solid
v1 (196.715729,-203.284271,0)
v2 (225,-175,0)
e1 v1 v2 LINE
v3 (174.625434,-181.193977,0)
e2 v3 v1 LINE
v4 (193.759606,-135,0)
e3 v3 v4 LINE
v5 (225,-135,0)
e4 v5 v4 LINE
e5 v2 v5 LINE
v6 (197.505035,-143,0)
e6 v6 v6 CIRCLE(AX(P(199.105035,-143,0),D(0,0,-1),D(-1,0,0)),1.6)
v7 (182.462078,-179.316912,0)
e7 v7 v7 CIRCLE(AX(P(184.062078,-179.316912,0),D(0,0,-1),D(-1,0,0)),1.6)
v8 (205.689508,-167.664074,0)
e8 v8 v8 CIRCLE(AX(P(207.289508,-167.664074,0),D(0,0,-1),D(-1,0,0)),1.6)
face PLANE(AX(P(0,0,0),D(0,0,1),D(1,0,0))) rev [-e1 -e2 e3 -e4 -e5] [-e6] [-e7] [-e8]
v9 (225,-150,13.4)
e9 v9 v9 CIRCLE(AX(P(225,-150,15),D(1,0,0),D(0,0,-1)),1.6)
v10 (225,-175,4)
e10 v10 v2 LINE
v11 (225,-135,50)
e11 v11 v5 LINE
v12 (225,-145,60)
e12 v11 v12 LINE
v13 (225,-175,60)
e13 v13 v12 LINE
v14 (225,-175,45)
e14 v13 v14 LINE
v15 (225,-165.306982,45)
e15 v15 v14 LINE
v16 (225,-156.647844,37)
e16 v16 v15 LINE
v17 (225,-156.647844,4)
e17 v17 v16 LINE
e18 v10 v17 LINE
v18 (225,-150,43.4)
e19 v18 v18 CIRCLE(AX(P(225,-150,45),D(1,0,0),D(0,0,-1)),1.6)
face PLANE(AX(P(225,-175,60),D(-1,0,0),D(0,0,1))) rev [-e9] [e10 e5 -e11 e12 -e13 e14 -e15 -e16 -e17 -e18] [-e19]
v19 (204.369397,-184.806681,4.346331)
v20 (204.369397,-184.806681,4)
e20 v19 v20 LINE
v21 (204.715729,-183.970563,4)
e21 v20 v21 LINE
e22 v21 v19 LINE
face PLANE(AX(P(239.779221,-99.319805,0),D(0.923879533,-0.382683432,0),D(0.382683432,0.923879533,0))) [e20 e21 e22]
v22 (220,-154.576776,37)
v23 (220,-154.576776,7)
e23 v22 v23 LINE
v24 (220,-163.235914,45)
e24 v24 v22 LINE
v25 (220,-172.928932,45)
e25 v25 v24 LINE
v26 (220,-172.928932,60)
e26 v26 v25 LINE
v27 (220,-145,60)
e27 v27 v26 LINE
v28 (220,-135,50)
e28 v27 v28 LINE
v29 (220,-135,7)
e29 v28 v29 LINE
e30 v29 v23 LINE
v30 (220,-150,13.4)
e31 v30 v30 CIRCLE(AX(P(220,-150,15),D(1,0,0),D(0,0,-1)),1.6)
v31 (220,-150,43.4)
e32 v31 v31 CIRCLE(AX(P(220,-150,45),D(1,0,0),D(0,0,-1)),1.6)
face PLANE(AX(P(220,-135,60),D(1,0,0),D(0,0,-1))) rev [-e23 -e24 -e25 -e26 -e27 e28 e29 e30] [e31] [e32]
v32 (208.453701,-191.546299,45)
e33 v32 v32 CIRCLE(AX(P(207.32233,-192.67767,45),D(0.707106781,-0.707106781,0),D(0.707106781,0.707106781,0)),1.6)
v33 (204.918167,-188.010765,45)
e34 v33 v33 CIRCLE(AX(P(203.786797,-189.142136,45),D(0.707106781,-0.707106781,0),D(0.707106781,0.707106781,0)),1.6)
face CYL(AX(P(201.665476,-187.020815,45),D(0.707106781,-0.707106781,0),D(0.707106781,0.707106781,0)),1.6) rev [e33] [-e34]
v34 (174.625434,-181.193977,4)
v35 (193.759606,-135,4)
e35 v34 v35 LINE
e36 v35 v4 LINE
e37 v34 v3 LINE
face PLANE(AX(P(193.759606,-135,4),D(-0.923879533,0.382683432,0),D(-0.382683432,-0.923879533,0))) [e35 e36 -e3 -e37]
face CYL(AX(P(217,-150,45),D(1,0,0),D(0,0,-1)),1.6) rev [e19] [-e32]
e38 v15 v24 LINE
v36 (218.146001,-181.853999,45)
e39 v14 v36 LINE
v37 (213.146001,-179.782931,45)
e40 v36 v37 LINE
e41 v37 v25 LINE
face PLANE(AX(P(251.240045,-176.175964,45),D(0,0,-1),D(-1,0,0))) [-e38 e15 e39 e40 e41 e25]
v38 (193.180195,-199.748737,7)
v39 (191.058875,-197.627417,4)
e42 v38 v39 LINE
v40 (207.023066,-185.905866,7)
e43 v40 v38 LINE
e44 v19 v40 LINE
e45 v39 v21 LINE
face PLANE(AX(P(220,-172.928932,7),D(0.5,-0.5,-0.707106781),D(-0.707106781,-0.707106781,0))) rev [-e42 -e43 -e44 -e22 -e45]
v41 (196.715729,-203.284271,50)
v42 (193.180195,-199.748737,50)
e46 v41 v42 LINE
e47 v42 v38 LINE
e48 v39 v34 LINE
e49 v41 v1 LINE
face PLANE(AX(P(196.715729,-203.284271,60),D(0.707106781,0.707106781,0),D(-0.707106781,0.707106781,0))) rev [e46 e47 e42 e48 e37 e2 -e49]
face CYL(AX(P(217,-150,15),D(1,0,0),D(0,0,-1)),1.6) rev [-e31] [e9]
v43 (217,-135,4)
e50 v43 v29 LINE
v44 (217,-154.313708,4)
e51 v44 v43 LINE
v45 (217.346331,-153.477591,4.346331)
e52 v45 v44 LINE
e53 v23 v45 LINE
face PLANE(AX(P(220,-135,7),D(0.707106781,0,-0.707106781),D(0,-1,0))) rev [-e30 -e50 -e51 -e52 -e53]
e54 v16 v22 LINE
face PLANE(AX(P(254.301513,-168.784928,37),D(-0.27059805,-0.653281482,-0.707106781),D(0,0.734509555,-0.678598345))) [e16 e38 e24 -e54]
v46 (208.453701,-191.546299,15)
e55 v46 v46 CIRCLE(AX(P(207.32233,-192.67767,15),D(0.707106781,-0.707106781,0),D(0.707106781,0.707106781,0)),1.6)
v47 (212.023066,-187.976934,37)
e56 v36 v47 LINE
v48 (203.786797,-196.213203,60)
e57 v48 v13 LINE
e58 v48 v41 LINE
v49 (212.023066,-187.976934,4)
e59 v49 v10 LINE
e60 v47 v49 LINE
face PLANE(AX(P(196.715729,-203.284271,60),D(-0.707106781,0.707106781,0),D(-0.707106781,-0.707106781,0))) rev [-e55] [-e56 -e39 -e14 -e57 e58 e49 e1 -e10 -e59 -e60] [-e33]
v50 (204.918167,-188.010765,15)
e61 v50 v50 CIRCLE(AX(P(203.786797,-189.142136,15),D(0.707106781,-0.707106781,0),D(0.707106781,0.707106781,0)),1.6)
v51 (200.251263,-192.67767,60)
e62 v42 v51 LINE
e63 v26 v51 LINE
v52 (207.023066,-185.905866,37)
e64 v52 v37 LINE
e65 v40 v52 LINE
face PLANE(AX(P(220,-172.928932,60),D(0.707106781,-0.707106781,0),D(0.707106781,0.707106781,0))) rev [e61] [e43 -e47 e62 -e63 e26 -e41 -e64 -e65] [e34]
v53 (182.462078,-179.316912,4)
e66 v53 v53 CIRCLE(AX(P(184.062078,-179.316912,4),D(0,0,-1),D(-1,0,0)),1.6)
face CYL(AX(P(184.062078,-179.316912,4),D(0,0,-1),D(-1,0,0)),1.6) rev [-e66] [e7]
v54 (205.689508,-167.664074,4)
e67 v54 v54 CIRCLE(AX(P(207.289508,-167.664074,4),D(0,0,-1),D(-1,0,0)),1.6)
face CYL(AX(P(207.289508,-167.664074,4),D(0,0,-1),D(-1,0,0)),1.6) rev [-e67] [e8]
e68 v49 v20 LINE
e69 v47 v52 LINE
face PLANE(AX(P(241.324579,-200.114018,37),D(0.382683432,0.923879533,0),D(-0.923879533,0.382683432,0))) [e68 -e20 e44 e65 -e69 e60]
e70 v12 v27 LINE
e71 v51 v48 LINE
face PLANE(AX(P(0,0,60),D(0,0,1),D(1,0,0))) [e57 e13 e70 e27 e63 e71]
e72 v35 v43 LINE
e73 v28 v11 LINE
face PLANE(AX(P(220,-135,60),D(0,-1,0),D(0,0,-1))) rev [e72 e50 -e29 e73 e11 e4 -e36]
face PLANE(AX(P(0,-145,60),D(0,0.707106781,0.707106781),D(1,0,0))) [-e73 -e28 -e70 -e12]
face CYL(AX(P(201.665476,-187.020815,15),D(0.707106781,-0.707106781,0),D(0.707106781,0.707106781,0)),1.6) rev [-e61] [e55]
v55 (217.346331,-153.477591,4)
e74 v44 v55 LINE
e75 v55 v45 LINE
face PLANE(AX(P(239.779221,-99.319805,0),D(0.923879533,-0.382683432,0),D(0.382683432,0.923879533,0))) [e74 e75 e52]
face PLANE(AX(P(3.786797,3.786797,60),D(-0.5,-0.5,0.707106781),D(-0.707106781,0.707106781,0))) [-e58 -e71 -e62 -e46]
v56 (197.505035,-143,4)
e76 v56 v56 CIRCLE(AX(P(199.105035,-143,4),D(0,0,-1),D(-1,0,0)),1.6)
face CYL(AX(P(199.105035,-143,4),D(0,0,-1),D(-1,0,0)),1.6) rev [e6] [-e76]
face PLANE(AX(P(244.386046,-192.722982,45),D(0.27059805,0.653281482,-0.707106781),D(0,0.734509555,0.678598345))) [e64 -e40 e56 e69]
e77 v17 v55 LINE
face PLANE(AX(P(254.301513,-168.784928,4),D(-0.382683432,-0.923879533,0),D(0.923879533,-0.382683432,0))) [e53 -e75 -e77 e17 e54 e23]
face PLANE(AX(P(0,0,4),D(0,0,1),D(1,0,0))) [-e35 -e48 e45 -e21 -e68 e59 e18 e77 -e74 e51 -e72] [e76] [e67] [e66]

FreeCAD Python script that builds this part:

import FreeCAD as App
import Part
import Sketcher

V = App.Vector
Q = App.Units.Quantity


def edges_at(feature, points):
    """Names of the edges that pass closest to the given points."""
    edges = feature.Shape.Edges
    near = lambda p: min(range(len(edges)), key=lambda i: edges[i].distToShape(Part.Vertex(*p))[0])
    return sorted({f"Edge{near(p) + 1}" for p in points})

doc = App.newDocument("Part")
params = doc.addObject("Spreadsheet::Sheet", "Params")
for row, (alias, value) in enumerate([
    ("sketch1_width", "5 mm"),
    ("sketch1_height", "40 mm"),
    ("sketch1_length", "5 mm"),
    ("sketch1_length2", "40 mm"),
    ("pad1_length", "60 mm"),
    ("sketch2_diameter", "3.2 mm"),
    ("sketch2_height", "40 mm"),
    ("sketch2_length", "40 mm"),
    ("sketch2_length2", "50 mm"),
    ("pad2_length", "4 mm"),
    ("chamfer_size", "3 mm"),
    ("sketch3_diameter", "3.2 mm"),
    ("pocket1_length", "8 mm"),
    ("sketch4_diameter", "3.2 mm"),
    ("pocket2_length", "8 mm"),
    ("chamfer2_size", "10 mm"),
    ("sketch5_width", "33 mm"),
    ("pocket3_length", "40 mm"),
], start=1):
    params.set(f"A{row}", alias)
    params.set(f"B{row}", "=" + value)
    params.setAlias(f"B{row}", alias)

body = doc.addObject("PartDesign::Body", "Body")

sketch1 = body.newObject("Sketcher::SketchObject", "Sketch")
sketch1.AttachmentSupport = (doc.getObject("XY_Plane"), [""])
sketch1.MapMode = "FlatFace"
sketch1.addGeometry(Part.LineSegment(V(225, -175, 0), V(225, -135, 0)), False)
sketch1.addGeometry(Part.LineSegment(V(225, -135, 0), V(220, -135, 0)), False)
sketch1.addGeometry(Part.LineSegment(V(220, -135, 0), V(220, -172.928932, 0)), False)
sketch1.addGeometry(Part.LineSegment(V(220, -172.928932, 0), V(193.180195, -199.748737, 0)), False)
sketch1.addGeometry(Part.LineSegment(V(193.180195, -199.748737, 0), V(196.715729, -203.284271, 0)), False)
sketch1.addGeometry(Part.LineSegment(V(196.715729, -203.284271, 0), V(225, -175, 0)), False)
sketch1.addConstraint(Sketcher.Constraint("Coincident", 0, 2, 1, 1))
sketch1.addConstraint(Sketcher.Constraint("Coincident", 1, 2, 2, 1))
sketch1.addConstraint(Sketcher.Constraint("Coincident", 2, 2, 3, 1))
sketch1.addConstraint(Sketcher.Constraint("Coincident", 3, 2, 4, 1))
sketch1.addConstraint(Sketcher.Constraint("Coincident", 4, 2, 5, 1))
sketch1.addConstraint(Sketcher.Constraint("Coincident", 5, 2, 0, 1))
sketch1.addConstraint(Sketcher.Constraint("Vertical", 0))
sketch1.addConstraint(Sketcher.Constraint("Horizontal", 1))
sketch1.addConstraint(Sketcher.Constraint("Vertical", 2))
sketch1.addConstraint(Sketcher.Constraint("Perpendicular", 3, 4))
sketch1.addConstraint(Sketcher.Constraint("Perpendicular", 4, 5))
sketch1.addConstraint(Sketcher.Constraint("DistanceX", 1, 2, 1, 1, Q("5 mm")))
sketch1.addConstraint(Sketcher.Constraint("DistanceY", 0, 1, 0, 2, Q("40 mm")))
sketch1.addConstraint(Sketcher.Constraint("Angle", 3, Q("-135 deg")))
sketch1.addConstraint(Sketcher.Constraint("Distance", 4, Q("5 mm")))
sketch1.addConstraint(Sketcher.Constraint("Distance", 5, Q("40 mm")))
sketch1.addConstraint(Sketcher.Constraint("DistanceX", -1, 1, 0, 2, Q("225 mm")))
sketch1.addConstraint(Sketcher.Constraint("DistanceY", 0, 2, -1, 1, Q("135 mm")))
sketch1.setExpression("Constraints[11]", "Params.sketch1_width")
sketch1.setExpression("Constraints[12]", "Params.sketch1_height")
sketch1.setExpression("Constraints[14]", "Params.sketch1_length")
sketch1.setExpression("Constraints[15]", "Params.sketch1_length2")
pad1 = body.newObject("PartDesign::Pad", "Pad")
pad1.Profile = sketch1
pad1.setExpression("Length", "Params.pad1_length")

sketch2 = body.newObject("Sketcher::SketchObject", "Sketch001")
sketch2.AttachmentSupport = (doc.getObject("XY_Plane"), [""])
sketch2.MapMode = "FlatFace"
sketch2.addGeometry(Part.LineSegment(V(193.759606, -135, 0), V(225, -135, 0)), False)
sketch2.addGeometry(Part.LineSegment(V(225, -135, 0), V(225, -175, 0)), False)
sketch2.addGeometry(Part.LineSegment(V(225, -175, 0), V(196.715729, -203.284271, 0)), False)
sketch2.addGeometry(Part.LineSegment(V(196.715729, -203.284271, 0), V(174.625434, -181.193977, 0)), False)
sketch2.addGeometry(Part.LineSegment(V(174.625434, -181.193977, 0), V(193.759606, -135, 0)), False)
sketch2.addGeometry(Part.Circle(V(184.062078, -179.316912, 0), V(0, 0, 1), 1.6), False)
sketch2.addGeometry(Part.Circle(V(207.289508, -167.664074, 0), V(0, 0, 1), 1.6), False)
sketch2.addGeometry(Part.Circle(V(199.105035, -143, 0), V(0, 0, 1), 1.6), False)
sketch2.addConstraint(Sketcher.Constraint("Coincident", 0, 2, 1, 1))
sketch2.addConstraint(Sketcher.Constraint("Coincident", 1, 2, 2, 1))
sketch2.addConstraint(Sketcher.Constraint("Coincident", 2, 2, 3, 1))
sketch2.addConstraint(Sketcher.Constraint("Coincident", 3, 2, 4, 1))
sketch2.addConstraint(Sketcher.Constraint("Coincident", 4, 2, 0, 1))
sketch2.addConstraint(Sketcher.Constraint("Horizontal", 0))
sketch2.addConstraint(Sketcher.Constraint("Vertical", 1))
sketch2.addConstraint(Sketcher.Constraint("Equal", 5, 6))
sketch2.addConstraint(Sketcher.Constraint("Equal", 6, 7))
sketch2.addConstraint(Sketcher.Constraint("Perpendicular", 2, 3))
sketch2.addConstraint(Sketcher.Constraint("Diameter", 5, Q("3.2 mm")))
sketch2.addConstraint(Sketcher.Constraint("DistanceY", 1, 2, 1, 1, Q("40 mm")))
sketch2.addConstraint(Sketcher.Constraint("Angle", 2, Q("-135 deg")))
sketch2.addConstraint(Sketcher.Constraint("Distance", 2, Q("40 mm")))
sketch2.addConstraint(Sketcher.Constraint("Distance", 4, Q("50 mm")))
sketch2.addConstraint(Sketcher.Constraint("DistanceY", 7, 3, -1, 1, Q("143 mm")))
sketch2.addConstraint(Sketcher.Constraint("DistanceX", -1, 1, 0, 2, Q("225 mm")))
sketch2.addConstraint(Sketcher.Constraint("DistanceY", 0, 2, -1, 1, Q("135 mm")))
sketch2.addConstraint(Sketcher.Constraint("Angle", 4, Q("67.5 deg")))
sketch2.addConstraint(Sketcher.Constraint("DistanceX", 3, 2, 7, 3, Q("24.479601 mm")))
sketch2.addConstraint(Sketcher.Constraint("DistanceY", 5, 3, -1, 1, Q("179.316912 mm")))
sketch2.addConstraint(Sketcher.Constraint("DistanceX", -1, 1, 6, 3, Q("207.289508 mm")))
sketch2.addConstraint(Sketcher.Constraint("DistanceX", 5, 3, 6, 3, Q("23.227431 mm")))
sketch2.addConstraint(Sketcher.Constraint("DistanceY", 6, 3, -1, 1, Q("167.664074 mm")))
sketch2.setExpression("Constraints[10]", "Params.sketch2_diameter")
sketch2.setExpression("Constraints[11]", "Params.sketch2_height")
sketch2.setExpression("Constraints[13]", "Params.sketch2_length")
sketch2.setExpression("Constraints[14]", "Params.sketch2_length2")
pad2 = body.newObject("PartDesign::Pad", "Pad001")
pad2.Profile = sketch2
pad2.setExpression("Length", "Params.pad2_length")
doc.recompute()

chamfer = body.newObject("PartDesign::Chamfer", "Chamfer")
chamfer.Base = (pad2, edges_at(pad2, [(220, -153.964, 4), (206.59, -186.339, 4)]))
chamfer.setExpression("Size", "Params.chamfer_size")

sketch3 = body.newObject("Sketcher::SketchObject", "Sketch002")
sketch3.AttachmentSupport = (doc.getObject("YZ_Plane"), [""])
sketch3.MapMode = "FlatFace"
sketch3.AttachmentOffset = App.Placement(V(0, 0, 225), App.Rotation())
sketch3.addGeometry(Part.Circle(V(-150, 45, 0), V(0, 0, 1), 1.6), False)
sketch3.addGeometry(Part.Circle(V(-150, 15, 0), V(0, 0, 1), 1.6), False)
sketch3.addConstraint(Sketcher.Constraint("Equal", 0, 1))
sketch3.addConstraint(Sketcher.Constraint("Vertical", 0, 3, 1, 3))
sketch3.addConstraint(Sketcher.Constraint("Diameter", 0, Q("3.2 mm")))
sketch3.addConstraint(Sketcher.Constraint("DistanceX", 0, 3, -1, 1, Q("150 mm")))
sketch3.addConstraint(Sketcher.Constraint("DistanceY", -1, 1, 0, 3, Q("45 mm")))
sketch3.addConstraint(Sketcher.Constraint("DistanceY", -1, 1, 1, 3, Q("15 mm")))
sketch3.setExpression("Constraints[2]", "Params.sketch3_diameter")
pocket1 = body.newObject("PartDesign::Pocket", "Pocket")
pocket1.Profile = sketch3
pocket1.setExpression("Length", "Params.pocket1_length")

sketch4 = body.newObject("Sketcher::SketchObject", "Sketch003")
sketch4.Placement = App.Placement(V(200, -200, 0), App.Rotation(V(0, 0, -1), V(0.707106781, 0.707106781, 0), V(0.707106781, -0.707106781, 0), "ZXY"))
sketch4.addGeometry(Part.Circle(V(-45, 10.355339, 0), V(0, 0, 1), 1.6), False)
sketch4.addGeometry(Part.Circle(V(-15, 10.355339, 0), V(0, 0, 1), 1.6), False)
sketch4.addConstraint(Sketcher.Constraint("Equal", 0, 1))
sketch4.addConstraint(Sketcher.Constraint("Horizontal", 0, 3, 1, 3))
sketch4.addConstraint(Sketcher.Constraint("Diameter", 0, Q("3.2 mm")))
sketch4.addConstraint(Sketcher.Constraint("DistanceX", 0, 3, -1, 1, Q("45 mm")))
sketch4.addConstraint(Sketcher.Constraint("DistanceX", 1, 3, -1, 1, Q("15 mm")))
sketch4.addConstraint(Sketcher.Constraint("DistanceY", -1, 1, 0, 3, Q("10.355339 mm")))
sketch4.setExpression("Constraints[2]", "Params.sketch4_diameter")
pocket2 = body.newObject("PartDesign::Pocket", "Pocket001")
pocket2.Profile = sketch4
pocket2.setExpression("Length", "Params.pocket2_length")
doc.recompute()

chamfer2 = body.newObject("PartDesign::Chamfer", "Chamfer001")
chamfer2.Base = (pocket2, edges_at(pocket2, [(222.5, -135, 60), (194.948, -201.517, 60)]))
chamfer2.setExpression("Size", "Params.chamfer2_size")

sketch5 = body.newObject("Sketcher::SketchObject", "Sketch004")
sketch5.Placement = App.Placement(V(239.779221, -99.319805, 0), App.Rotation(V(0, 0, -1), V(0.382683432, 0.923879533, 0), V(0.923879533, -0.382683432, 0), "ZXY"))
sketch5.addGeometry(Part.LineSegment(V(-37, -58.619965, 0), V(-45, -66.619965, 0)), False)
sketch5.addGeometry(Part.LineSegment(V(-45, -66.619965, 0), V(-45, -84.530327, 0)), False)
sketch5.addGeometry(Part.LineSegment(V(-45, -84.530327, 0), V(-37, -92.530327, 0)), False)
sketch5.addGeometry(Part.LineSegment(V(-37, -92.530327, 0), V(-4, -92.530327, 0)), False)
sketch5.addGeometry(Part.LineSegment(V(-4, -92.530327, 0), V(-4, -58.619965, 0)), False)
sketch5.addGeometry(Part.LineSegment(V(-4, -58.619965, 0), V(-37, -58.619965, 0)), False)
sketch5.addConstraint(Sketcher.Constraint("Coincident", 0, 2, 1, 1))
sketch5.addConstraint(Sketcher.Constraint("Coincident", 1, 2, 2, 1))
sketch5.addConstraint(Sketcher.Constraint("Coincident", 2, 2, 3, 1))
sketch5.addConstraint(Sketcher.Constraint("Coincident", 3, 2, 4, 1))
sketch5.addConstraint(Sketcher.Constraint("Coincident", 4, 2, 5, 1))
sketch5.addConstraint(Sketcher.Constraint("Coincident", 5, 2, 0, 1))
sketch5.addConstraint(Sketcher.Constraint("Vertical", 1))
sketch5.addConstraint(Sketcher.Constraint("Horizontal", 3))
sketch5.addConstraint(Sketcher.Constraint("Vertical", 4))
sketch5.addConstraint(Sketcher.Constraint("Horizontal", 5))
sketch5.addConstraint(Sketcher.Constraint("Perpendicular", 0, 2))
sketch5.addConstraint(Sketcher.Constraint("Vertical", 2, 2, 5, 2))
sketch5.addConstraint(Sketcher.Constraint("Equal", 0, 2))
sketch5.addConstraint(Sketcher.Constraint("DistanceX", 3, 1, 3, 2, Q("33 mm")))
sketch5.addConstraint(Sketcher.Constraint("DistanceX", 0, 2, -1, 1, Q("45 mm")))
sketch5.addConstraint(Sketcher.Constraint("DistanceX", 2, 2, -1, 1, Q("37 mm")))
sketch5.addConstraint(Sketcher.Constraint("DistanceY", 1, 2, 1, 1, Q("17.910363 mm")))
sketch5.addConstraint(Sketcher.Constraint("DistanceY", 0, 2, -1, 1, Q("66.619965 mm")))
sketch5.setExpression("Constraints[13]", "Params.sketch5_width")
pocket3 = body.newObject("PartDesign::Pocket", "Pocket002")
pocket3.Profile = sketch5
pocket3.setExpression("Length", "Params.pocket3_length")
pocket3.Reversed = True

doc.recompute()
